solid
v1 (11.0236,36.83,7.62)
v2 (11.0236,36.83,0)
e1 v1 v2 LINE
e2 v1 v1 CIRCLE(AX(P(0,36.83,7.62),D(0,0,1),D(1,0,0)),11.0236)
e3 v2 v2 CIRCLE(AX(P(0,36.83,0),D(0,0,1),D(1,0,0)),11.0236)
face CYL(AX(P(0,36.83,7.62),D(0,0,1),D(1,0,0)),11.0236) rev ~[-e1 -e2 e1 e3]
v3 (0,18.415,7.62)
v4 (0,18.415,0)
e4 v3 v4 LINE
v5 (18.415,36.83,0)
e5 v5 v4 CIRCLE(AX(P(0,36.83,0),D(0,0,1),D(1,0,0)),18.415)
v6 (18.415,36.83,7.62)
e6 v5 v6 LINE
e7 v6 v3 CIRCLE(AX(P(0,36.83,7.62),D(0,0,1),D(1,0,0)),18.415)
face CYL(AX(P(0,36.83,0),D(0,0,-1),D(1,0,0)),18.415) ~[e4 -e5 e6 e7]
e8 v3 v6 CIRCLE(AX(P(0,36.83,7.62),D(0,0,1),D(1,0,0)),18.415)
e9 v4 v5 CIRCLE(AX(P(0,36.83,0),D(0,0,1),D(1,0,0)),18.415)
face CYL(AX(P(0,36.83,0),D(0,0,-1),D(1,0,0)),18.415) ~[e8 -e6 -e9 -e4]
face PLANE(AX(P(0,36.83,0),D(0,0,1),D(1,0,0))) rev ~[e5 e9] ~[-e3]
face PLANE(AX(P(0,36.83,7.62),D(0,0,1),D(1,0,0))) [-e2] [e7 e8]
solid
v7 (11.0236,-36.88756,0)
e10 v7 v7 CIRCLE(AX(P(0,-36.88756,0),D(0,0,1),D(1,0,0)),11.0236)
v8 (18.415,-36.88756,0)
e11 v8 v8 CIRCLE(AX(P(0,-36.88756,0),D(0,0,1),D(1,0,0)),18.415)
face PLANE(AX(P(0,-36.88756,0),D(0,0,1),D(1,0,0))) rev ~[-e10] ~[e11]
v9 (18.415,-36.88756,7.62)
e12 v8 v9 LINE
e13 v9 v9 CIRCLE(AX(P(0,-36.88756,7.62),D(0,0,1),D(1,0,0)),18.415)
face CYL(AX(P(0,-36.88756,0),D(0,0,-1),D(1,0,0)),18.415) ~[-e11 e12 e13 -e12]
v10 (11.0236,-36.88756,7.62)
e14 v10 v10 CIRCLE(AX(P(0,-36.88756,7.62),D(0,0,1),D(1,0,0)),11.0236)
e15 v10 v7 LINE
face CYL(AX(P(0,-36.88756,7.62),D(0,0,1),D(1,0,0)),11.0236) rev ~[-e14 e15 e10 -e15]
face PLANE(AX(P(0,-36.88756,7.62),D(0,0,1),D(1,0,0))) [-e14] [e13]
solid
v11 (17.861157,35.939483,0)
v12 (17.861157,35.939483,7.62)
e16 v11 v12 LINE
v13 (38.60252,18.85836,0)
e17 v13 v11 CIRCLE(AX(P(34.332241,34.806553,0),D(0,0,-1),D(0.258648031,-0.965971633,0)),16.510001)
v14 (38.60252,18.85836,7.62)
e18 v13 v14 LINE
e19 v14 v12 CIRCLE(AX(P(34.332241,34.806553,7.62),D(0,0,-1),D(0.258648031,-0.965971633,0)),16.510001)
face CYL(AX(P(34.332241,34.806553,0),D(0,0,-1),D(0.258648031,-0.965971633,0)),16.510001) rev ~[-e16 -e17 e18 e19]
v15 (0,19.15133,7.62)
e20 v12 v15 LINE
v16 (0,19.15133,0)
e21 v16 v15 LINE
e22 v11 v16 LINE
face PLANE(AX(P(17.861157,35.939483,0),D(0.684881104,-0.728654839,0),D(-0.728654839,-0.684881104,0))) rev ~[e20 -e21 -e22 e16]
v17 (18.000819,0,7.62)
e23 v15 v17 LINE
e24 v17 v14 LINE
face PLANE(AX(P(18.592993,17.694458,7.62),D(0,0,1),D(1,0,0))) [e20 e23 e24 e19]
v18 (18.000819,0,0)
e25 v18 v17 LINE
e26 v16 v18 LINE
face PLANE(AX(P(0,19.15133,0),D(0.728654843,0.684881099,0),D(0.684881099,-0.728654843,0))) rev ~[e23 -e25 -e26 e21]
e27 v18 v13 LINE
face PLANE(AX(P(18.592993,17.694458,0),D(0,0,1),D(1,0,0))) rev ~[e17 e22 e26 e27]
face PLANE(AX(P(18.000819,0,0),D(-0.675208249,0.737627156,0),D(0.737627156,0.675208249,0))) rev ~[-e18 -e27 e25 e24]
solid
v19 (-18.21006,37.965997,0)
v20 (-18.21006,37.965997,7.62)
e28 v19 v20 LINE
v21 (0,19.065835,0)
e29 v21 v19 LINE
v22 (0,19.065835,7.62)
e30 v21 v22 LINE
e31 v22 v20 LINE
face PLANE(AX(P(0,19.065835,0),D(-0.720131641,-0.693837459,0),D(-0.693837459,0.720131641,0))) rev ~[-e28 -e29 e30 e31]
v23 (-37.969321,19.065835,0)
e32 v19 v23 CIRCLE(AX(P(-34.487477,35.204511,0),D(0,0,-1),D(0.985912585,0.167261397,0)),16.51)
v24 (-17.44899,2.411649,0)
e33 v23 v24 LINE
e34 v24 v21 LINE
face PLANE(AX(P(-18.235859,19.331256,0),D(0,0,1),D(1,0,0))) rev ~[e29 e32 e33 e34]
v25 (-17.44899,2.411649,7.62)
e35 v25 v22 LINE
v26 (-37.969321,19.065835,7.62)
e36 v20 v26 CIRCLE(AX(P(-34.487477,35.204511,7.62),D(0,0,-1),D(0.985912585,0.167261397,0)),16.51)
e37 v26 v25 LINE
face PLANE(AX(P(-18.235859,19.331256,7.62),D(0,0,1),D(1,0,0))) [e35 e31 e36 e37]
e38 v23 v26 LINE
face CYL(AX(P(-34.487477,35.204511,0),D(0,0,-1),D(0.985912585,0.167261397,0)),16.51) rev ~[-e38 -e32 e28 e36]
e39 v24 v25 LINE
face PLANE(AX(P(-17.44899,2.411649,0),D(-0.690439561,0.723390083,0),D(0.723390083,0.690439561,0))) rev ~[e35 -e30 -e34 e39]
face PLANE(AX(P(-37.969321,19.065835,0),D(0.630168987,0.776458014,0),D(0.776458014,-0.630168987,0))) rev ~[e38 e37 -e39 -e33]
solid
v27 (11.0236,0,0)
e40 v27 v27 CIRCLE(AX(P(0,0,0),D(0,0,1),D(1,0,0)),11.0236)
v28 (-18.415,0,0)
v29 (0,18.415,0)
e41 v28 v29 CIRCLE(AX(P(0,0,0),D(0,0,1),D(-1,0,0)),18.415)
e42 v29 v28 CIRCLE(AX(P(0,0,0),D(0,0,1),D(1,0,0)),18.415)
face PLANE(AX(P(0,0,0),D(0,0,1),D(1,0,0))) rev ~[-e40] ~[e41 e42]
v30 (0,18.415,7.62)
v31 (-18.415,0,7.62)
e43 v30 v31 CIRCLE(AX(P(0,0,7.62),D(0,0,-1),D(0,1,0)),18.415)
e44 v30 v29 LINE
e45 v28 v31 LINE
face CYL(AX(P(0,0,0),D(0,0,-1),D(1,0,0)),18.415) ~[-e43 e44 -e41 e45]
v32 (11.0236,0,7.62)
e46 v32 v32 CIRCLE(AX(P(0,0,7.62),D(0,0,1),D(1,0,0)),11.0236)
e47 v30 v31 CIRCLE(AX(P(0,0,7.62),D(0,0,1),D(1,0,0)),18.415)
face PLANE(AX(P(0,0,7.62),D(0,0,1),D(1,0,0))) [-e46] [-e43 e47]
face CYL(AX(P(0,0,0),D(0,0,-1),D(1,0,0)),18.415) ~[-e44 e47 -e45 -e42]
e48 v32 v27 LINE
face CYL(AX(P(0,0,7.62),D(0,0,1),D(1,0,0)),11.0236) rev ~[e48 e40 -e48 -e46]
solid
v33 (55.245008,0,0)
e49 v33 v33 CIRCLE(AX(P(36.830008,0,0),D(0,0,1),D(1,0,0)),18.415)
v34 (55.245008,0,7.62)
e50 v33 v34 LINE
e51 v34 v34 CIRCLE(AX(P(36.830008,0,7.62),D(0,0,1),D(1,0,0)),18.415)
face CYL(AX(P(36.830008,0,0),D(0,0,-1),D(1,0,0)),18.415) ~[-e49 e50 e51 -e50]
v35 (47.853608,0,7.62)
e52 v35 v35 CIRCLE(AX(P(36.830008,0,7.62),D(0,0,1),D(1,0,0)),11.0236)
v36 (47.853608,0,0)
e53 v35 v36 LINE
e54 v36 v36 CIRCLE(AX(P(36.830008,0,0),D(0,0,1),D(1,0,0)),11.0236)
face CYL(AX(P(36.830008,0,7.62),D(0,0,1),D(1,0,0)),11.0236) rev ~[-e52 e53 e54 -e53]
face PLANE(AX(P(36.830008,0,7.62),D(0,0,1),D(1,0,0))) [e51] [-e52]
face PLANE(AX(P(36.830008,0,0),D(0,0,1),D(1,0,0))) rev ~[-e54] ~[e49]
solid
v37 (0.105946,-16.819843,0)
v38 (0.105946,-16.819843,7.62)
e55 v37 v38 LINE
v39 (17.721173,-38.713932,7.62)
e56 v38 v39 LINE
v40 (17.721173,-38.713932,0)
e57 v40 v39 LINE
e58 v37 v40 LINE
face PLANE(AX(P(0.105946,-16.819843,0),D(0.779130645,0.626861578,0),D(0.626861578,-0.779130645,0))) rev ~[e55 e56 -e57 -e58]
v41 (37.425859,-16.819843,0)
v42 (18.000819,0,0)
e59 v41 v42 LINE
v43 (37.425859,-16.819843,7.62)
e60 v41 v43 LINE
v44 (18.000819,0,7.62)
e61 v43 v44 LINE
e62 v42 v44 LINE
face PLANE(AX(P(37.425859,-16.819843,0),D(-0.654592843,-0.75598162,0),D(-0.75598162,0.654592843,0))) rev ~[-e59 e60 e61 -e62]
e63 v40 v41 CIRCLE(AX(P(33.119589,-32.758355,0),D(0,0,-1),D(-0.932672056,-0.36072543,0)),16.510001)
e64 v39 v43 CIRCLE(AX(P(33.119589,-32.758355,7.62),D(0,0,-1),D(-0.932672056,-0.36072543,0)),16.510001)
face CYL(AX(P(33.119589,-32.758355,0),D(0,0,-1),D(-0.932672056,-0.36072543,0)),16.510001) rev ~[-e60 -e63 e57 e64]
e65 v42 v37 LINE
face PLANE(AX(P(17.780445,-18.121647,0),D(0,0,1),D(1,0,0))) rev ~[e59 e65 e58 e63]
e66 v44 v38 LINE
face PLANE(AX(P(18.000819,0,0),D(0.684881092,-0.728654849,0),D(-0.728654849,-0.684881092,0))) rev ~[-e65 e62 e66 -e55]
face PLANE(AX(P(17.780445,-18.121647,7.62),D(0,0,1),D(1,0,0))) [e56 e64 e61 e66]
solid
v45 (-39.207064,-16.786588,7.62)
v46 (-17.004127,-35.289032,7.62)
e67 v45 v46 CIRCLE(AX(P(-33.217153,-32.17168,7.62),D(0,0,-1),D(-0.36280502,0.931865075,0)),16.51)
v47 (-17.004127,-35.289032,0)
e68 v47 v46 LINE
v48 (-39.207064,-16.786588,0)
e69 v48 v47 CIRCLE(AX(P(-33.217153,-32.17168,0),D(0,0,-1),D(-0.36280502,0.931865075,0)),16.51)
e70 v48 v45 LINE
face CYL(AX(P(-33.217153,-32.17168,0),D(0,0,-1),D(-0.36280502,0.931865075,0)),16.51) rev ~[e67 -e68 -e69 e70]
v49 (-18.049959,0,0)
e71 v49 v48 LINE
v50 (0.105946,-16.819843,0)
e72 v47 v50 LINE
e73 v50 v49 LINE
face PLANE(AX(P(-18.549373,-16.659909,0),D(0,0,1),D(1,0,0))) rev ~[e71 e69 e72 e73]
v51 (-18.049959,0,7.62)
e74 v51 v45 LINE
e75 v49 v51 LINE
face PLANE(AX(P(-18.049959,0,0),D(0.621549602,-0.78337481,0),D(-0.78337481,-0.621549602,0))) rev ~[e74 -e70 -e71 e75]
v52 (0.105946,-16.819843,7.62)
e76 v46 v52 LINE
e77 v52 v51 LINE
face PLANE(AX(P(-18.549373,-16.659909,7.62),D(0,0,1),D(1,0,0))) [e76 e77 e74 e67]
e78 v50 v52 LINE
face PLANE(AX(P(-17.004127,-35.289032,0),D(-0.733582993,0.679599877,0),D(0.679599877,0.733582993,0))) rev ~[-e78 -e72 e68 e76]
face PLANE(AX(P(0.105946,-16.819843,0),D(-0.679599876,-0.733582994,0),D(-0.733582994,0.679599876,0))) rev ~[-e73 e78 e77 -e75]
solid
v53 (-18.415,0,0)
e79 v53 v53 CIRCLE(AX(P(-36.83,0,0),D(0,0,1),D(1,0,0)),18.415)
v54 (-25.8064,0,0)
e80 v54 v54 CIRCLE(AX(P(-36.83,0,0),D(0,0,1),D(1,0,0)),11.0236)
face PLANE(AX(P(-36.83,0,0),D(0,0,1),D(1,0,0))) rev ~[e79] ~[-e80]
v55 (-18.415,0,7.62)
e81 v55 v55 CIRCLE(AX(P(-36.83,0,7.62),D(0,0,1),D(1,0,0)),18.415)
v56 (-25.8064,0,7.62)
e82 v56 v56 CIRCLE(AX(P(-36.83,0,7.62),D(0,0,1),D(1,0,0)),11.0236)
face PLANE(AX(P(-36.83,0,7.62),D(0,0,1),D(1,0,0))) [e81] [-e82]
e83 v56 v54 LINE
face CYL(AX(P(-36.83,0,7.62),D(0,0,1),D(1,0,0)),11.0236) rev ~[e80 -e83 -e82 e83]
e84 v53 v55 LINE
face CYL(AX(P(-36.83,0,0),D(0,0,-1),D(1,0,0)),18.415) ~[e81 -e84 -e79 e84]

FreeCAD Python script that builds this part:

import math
import FreeCAD as App
import Part
import Sketcher
Q = App.Units.Quantity

doc = App.newDocument("Part")
body = doc.addObject("PartDesign::Body", "Body")
body.AllowCompound = True

# Sketch on XY plane
sketch1 = doc.addObject("Sketcher::SketchObject", "Sketch")
body.addObject(sketch1)
sketch1.AttachmentSupport = (doc.XY_Plane, [""])
sketch1.MapMode = "FlatFace"
sketch1.addGeometry(Part.Circle(App.Vector(0, 0, 0), App.Vector(0, 0, 1), 18), False)
sketch1.addConstraint([
    Sketcher.Constraint("Coincident", 0, 3, -1, 1),
    Sketcher.Constraint("Diameter", 0, Q("1.45 in")),
])
pad1 = doc.addObject("PartDesign::Pad", "Pad")
body.addObject(pad1)
pad1.Profile = sketch1
pad1.Length = Q("0.3 in")

# Sketch on XY plane
sketch2 = doc.addObject("Sketcher::SketchObject", "Sketch001")
body.addObject(sketch2)
sketch2.AttachmentSupport = (doc.XY_Plane, [""])
sketch2.MapMode = "FlatFace"
sketch2.AttachmentOffset = App.Placement(App.Vector(0, 0, 0.3 * 25.4), App.Rotation())
sketch2.addGeometry(Part.Circle(App.Vector(0, 0, 0), App.Vector(0, 0, 1), 11), False)
sketch2.addConstraint([
    Sketcher.Constraint("Coincident", 0, 3, -1, 1),
    Sketcher.Constraint("Diameter", 0, Q("0.868 in")),
])
pocket1 = doc.addObject("PartDesign::Pocket", "Pocket")
body.addObject(pocket1)
pocket1.Profile = sketch2
pocket1.Length = Q("1 in")

# Sketch on XY plane
sketch3 = doc.addObject("Sketcher::SketchObject", "Sketch002")
body.addObject(sketch3)
sketch3.AttachmentSupport = (doc.XY_Plane, [""])
sketch3.MapMode = "FlatFace"
sketch3.addGeometry(Part.Circle(App.Vector(0, 37, 0), App.Vector(0, 0, 1), 18), False)
sketch3.addConstraint([
    Sketcher.Constraint("PointOnObject", 0, 3, -2),
    Sketcher.Constraint("Diameter", 0, Q("1.45 in")),
    Sketcher.Constraint("DistanceY", -1, 1, 0, 3, Q("1.45 in")),
])
pad2 = doc.addObject("PartDesign::Pad", "Pad001")
body.addObject(pad2)
pad2.Profile = sketch3
pad2.Length = Q("0.3 in")

# Sketch on XY plane
sketch4 = doc.addObject("Sketcher::SketchObject", "Sketch003")
body.addObject(sketch4)
sketch4.AttachmentSupport = (doc.XY_Plane, [""])
sketch4.MapMode = "FlatFace"
sketch4.addGeometry([
    Part.Circle(App.Vector(-37, 0, 0), App.Vector(0, 0, 1), 18),
    Part.Circle(App.Vector(37, 0, 0), App.Vector(0, 0, 1), 18),
    Part.Circle(App.Vector(0, -37, 0), App.Vector(0, 0, 1), 18),
], False)
sketch4.addConstraint([
    Sketcher.Constraint("Equal", 0, 1),
    Sketcher.Constraint("Equal", 1, 2),
    Sketcher.Constraint("Symmetric", 0, 3, 1, 3, -1, 1),
    Sketcher.Constraint("PointOnObject", 0, 3, -1),
    Sketcher.Constraint("PointOnObject", 2, 3, -2),
    Sketcher.Constraint("Diameter", 0, Q("1.45 in")),
    Sketcher.Constraint("DistanceX", 0, 3, -1, 1, Q("1.45 in")),
    Sketcher.Constraint("DistanceY", 2, 3, -1, 1, Q("36.88756 mm")),
])
pad3 = doc.addObject("PartDesign::Pad", "Pad002")
body.addObject(pad3)
pad3.Profile = sketch4
pad3.Length = Q("0.3 in")

# Sketch on XY plane
sketch5 = doc.addObject("Sketcher::SketchObject", "Sketch004")
body.addObject(sketch5)
sketch5.AttachmentSupport = (doc.XY_Plane, [""])
sketch5.MapMode = "FlatFace"
sketch5.AttachmentOffset = App.Placement(App.Vector(0, 0, 0.3 * 25.4), App.Rotation())
sketch5.addGeometry(Part.Circle(App.Vector(0, 37, 0), App.Vector(0, 0, 1), 11), False)
sketch5.addConstraint([
    Sketcher.Constraint("PointOnObject", 0, 3, -2),
    Sketcher.Constraint("Diameter", 0, Q("0.868 in")),
    Sketcher.Constraint("DistanceY", -1, 1, 0, 3, Q("1.45 in")),
])
pocket2 = doc.addObject("PartDesign::Pocket", "Pocket001")
body.addObject(pocket2)
pocket2.Profile = sketch5
pocket2.Length = Q("1 in")

# Sketch on XY plane
sketch6 = doc.addObject("Sketcher::SketchObject", "Sketch005")
body.addObject(sketch6)
sketch6.AttachmentSupport = (doc.XY_Plane, [""])
sketch6.MapMode = "FlatFace"
sketch6.AttachmentOffset = App.Placement(App.Vector(0, 0, 0.3 * 25.4), App.Rotation())
sketch6.addGeometry(Part.Circle(App.Vector(-37, 0, 0), App.Vector(0, 0, 1), 11), False)
sketch6.addConstraint([
    Sketcher.Constraint("PointOnObject", 0, 3, -1),
    Sketcher.Constraint("Diameter", 0, Q("0.868 in")),
    Sketcher.Constraint("DistanceX", 0, 3, -1, 1, Q("1.45 in")),
])
pocket3 = doc.addObject("PartDesign::Pocket", "Pocket002")
body.addObject(pocket3)
pocket3.Profile = sketch6
pocket3.Length = Q("1 in")

# Sketch on XY plane
sketch7 = doc.addObject("Sketcher::SketchObject", "Sketch006")
body.addObject(sketch7)
sketch7.AttachmentSupport = (doc.XY_Plane, [""])
sketch7.MapMode = "FlatFace"
sketch7.AttachmentOffset = App.Placement(App.Vector(0, 0, 0.3 * 25.4), App.Rotation())
sketch7.addGeometry(Part.Circle(App.Vector(0, -37, 0), App.Vector(0, 0, 1), 11), False)
sketch7.addConstraint([
    Sketcher.Constraint("PointOnObject", 0, 3, -2),
    Sketcher.Constraint("Diameter", 0, Q("0.868 in")),
    Sketcher.Constraint("DistanceY", 0, 3, -1, 1, Q("36.88756 mm")),
])
pocket4 = doc.addObject("PartDesign::Pocket", "Pocket003")
body.addObject(pocket4)
pocket4.Profile = sketch7
pocket4.Length = Q("1 in")

# Sketch on XY plane
sketch8 = doc.addObject("Sketcher::SketchObject", "Sketch007")
body.addObject(sketch8)
sketch8.AttachmentSupport = (doc.XY_Plane, [""])
sketch8.MapMode = "FlatFace"
sketch8.AttachmentOffset = App.Placement(App.Vector(0, 0, 0.3 * 25.4), App.Rotation())
sketch8.addGeometry(Part.Circle(App.Vector(37, 0, 0), App.Vector(0, 0, 1), 11), False)
sketch8.addConstraint([
    Sketcher.Constraint("PointOnObject", 0, 3, -1),
    Sketcher.Constraint("Diameter", 0, Q("0.868 in")),
    Sketcher.Constraint("DistanceX", -1, 1, 0, 3, Q("36.830008 mm")),
])
pocket5 = doc.addObject("PartDesign::Pocket", "Pocket004")
body.addObject(pocket5)
pocket5.Profile = sketch8
pocket5.Length = Q("1 in")
body2 = doc.addObject("PartDesign::Body", "Body001")

# Sketch on XY plane
sketch9 = doc.addObject("Sketcher::SketchObject", "Sketch008")
body2.addObject(sketch9)
sketch9.AttachmentSupport = (doc.getObject("XY_Plane001"), [""])
sketch9.MapMode = "FlatFace"
sketch9.addGeometry([
    Part.ArcOfCircle(Part.Circle(App.Vector(-34, 35, 0), App.Vector(0, 0, 1), 17), math.radians(-102), math.radians(10)),
    Part.LineSegment(App.Vector(-38, 19, 0), App.Vector(-17, 2, 0)),
    Part.LineSegment(App.Vector(-17, 2, 0), App.Vector(0, 19, 0)),
    Part.LineSegment(App.Vector(0, 19, 0), App.Vector(-18, 38, 0)),
], False)
sketch9.addConstraint([
    Sketcher.Constraint("Coincident", 0, 1, 1, 1),
    Sketcher.Constraint("Coincident", 1, 2, 2, 1),
    Sketcher.Constraint("Coincident", 2, 2, 3, 1),
    Sketcher.Constraint("Coincident", 3, 2, 0, 2),
    Sketcher.Constraint("PointOnObject", 2, 2, -2),
    Sketcher.Constraint("Horizontal", 0, 1, 2, 2),
    Sketcher.Constraint("Radius", 0, Q("0.65 in")),
    Sketcher.Constraint("DistanceY", -1, 1, 0, 3, Q("35.204511 mm")),
    Sketcher.Constraint("DistanceX", 0, 1, -1, 1, Q("37.969321 mm")),
    Sketcher.Constraint("DistanceX", 1, 2, -1, 1, Q("17.44899 mm")),
    Sketcher.Constraint("DistanceY", -1, 1, 1, 2, Q("2.411649 mm")),
    Sketcher.Constraint("DistanceX", 3, 2, -1, 1, Q("18.21006 mm")),
    Sketcher.Constraint("DistanceY", 1, 2, 3, 2, Q("35.554348 mm")),
])
pad4 = doc.addObject("PartDesign::Pad", "Pad003")
body2.addObject(pad4)
pad4.Profile = sketch9
pad4.Length = Q("0.3 in")
body3 = doc.addObject("PartDesign::Body", "Body002")
body3.AllowCompound = True

# Sketch on XY plane
sketch10 = doc.addObject("Sketcher::SketchObject", "Sketch009")
body3.addObject(sketch10)
sketch10.AttachmentSupport = (doc.getObject("XY_Plane002"), [""])
sketch10.MapMode = "FlatFace"
sketch10.addGeometry([
    Part.LineSegment(App.Vector(-17, -35, 0), App.Vector(0, -17, 0)),  # 0
    Part.LineSegment(App.Vector(0, -17, 0), App.Vector(-18, 0, 0)),  # 1
    Part.LineSegment(App.Vector(-18, 0, 0), App.Vector(-39, -17, 0)),  # 2
    Part.ArcOfCircle(Part.Circle(App.Vector(-33, -32, 0), App.Vector(0, 0, 1), 17), math.radians(-11), math.radians(111)),  # 3
    Part.LineSegment(App.Vector(37, -17, 0), App.Vector(18, 0, 0)),  # 4
    Part.LineSegment(App.Vector(18, 0, 0), App.Vector(0, -17, 0)),  # 5
    Part.LineSegment(App.Vector(0, -17, 0), App.Vector(18, -39, 0)),  # 6
    Part.ArcOfCircle(Part.Circle(App.Vector(33, -33, 0), App.Vector(0, 0, 1), 17), math.radians(75), math.radians(201)),  # 7
    Part.ArcOfCircle(Part.Circle(App.Vector(34, 35, 0), App.Vector(0, 0, 1), 17), math.radians(176), math.radians(285)),  # 8
    Part.LineSegment(App.Vector(18, 36, 0), App.Vector(0, 19, 0)),  # 9
    Part.LineSegment(App.Vector(0, 19, 0), App.Vector(18, 0, 0)),  # 10
    Part.LineSegment(App.Vector(18, 0, 0), App.Vector(39, 19, 0)),  # 11
], False)
sketch10.addConstraint([
    Sketcher.Constraint("Coincident", 0, 2, 1, 1),
    Sketcher.Constraint("Coincident", 1, 2, 2, 1),
    Sketcher.Constraint("Coincident", 2, 2, 3, 2),
    Sketcher.Constraint("Coincident", 3, 1, 0, 1),
    Sketcher.Constraint("Coincident", 4, 2, 5, 1),
    Sketcher.Constraint("Coincident", 5, 2, 6, 1),
    Sketcher.Constraint("Coincident", 6, 2, 7, 2),
    Sketcher.Constraint("Coincident", 7, 1, 4, 1),
    Sketcher.Constraint("Coincident", 8, 1, 9, 1),
    Sketcher.Constraint("Coincident", 9, 2, 10, 1),
    Sketcher.Constraint("Coincident", 10, 2, 11, 1),
    Sketcher.Constraint("Coincident", 11, 2, 8, 2),
    Sketcher.Constraint("Coincident", 5, 2, 0, 2),
    Sketcher.Constraint("Coincident", 10, 2, 4, 2),
    Sketcher.Constraint("Equal", 3, 7),
    Sketcher.Constraint("Equal", 7, 8),
    Sketcher.Constraint("PointOnObject", 1, 2, -1),
    Sketcher.Constraint("PointOnObject", 4, 2, -1),
    Sketcher.Constraint("PointOnObject", 9, 2, -2),
    Sketcher.Constraint("Perpendicular", 0, 1),
    Sketcher.Constraint("Parallel", 5, 9),
    Sketcher.Constraint("Perpendicular", 9, 10),
    Sketcher.Constraint("Horizontal", 5, 2, 7, 1),
    Sketcher.Constraint("Radius", 3, Q("0.65 in")),
    Sketcher.Constraint("DistanceX", 3, 3, 0, 2, Q("33.323099 mm")),
    Sketcher.Constraint("DistanceX", 1, 2, 8, 3, Q("52.3822 mm")),
    Sketcher.Constraint("DistanceX", 3, 1, 6, 2, Q("34.7253 mm")),
    Sketcher.Constraint("DistanceY", 6, 2, 3, 1, Q("3.4249 mm")),
    Sketcher.Constraint("DistanceX", 4, 2, 11, 2, Q("20.601701 mm")),
    Sketcher.Constraint("Distance", 2, Q("27.00764 mm")),
    Sketcher.Constraint("Distance", 5, Q("24.558778 mm")),
    Sketcher.Constraint("Distance", 10, Q("26.28313 mm")),
    Sketcher.Constraint("DistanceY", 3, 3, -1, 1, Q("32.17168 mm")),
    Sketcher.Constraint("DistanceX", -1, 1, 7, 3, Q("33.119589 mm")),
    Sketcher.Constraint("DistanceX", -1, 1, 8, 3, Q("34.332241 mm")),
    Sketcher.Constraint("DistanceX", -1, 1, 4, 2, Q("18.000819 mm")),
    Sketcher.Constraint("DistanceY", -1, 1, 11, 2, Q("18.85836 mm")),
])
pad5 = doc.addObject("PartDesign::Pad", "Pad004")
body3.addObject(pad5)
pad5.Profile = sketch10
pad5.Length = Q("0.3 in")

doc.recompute()
